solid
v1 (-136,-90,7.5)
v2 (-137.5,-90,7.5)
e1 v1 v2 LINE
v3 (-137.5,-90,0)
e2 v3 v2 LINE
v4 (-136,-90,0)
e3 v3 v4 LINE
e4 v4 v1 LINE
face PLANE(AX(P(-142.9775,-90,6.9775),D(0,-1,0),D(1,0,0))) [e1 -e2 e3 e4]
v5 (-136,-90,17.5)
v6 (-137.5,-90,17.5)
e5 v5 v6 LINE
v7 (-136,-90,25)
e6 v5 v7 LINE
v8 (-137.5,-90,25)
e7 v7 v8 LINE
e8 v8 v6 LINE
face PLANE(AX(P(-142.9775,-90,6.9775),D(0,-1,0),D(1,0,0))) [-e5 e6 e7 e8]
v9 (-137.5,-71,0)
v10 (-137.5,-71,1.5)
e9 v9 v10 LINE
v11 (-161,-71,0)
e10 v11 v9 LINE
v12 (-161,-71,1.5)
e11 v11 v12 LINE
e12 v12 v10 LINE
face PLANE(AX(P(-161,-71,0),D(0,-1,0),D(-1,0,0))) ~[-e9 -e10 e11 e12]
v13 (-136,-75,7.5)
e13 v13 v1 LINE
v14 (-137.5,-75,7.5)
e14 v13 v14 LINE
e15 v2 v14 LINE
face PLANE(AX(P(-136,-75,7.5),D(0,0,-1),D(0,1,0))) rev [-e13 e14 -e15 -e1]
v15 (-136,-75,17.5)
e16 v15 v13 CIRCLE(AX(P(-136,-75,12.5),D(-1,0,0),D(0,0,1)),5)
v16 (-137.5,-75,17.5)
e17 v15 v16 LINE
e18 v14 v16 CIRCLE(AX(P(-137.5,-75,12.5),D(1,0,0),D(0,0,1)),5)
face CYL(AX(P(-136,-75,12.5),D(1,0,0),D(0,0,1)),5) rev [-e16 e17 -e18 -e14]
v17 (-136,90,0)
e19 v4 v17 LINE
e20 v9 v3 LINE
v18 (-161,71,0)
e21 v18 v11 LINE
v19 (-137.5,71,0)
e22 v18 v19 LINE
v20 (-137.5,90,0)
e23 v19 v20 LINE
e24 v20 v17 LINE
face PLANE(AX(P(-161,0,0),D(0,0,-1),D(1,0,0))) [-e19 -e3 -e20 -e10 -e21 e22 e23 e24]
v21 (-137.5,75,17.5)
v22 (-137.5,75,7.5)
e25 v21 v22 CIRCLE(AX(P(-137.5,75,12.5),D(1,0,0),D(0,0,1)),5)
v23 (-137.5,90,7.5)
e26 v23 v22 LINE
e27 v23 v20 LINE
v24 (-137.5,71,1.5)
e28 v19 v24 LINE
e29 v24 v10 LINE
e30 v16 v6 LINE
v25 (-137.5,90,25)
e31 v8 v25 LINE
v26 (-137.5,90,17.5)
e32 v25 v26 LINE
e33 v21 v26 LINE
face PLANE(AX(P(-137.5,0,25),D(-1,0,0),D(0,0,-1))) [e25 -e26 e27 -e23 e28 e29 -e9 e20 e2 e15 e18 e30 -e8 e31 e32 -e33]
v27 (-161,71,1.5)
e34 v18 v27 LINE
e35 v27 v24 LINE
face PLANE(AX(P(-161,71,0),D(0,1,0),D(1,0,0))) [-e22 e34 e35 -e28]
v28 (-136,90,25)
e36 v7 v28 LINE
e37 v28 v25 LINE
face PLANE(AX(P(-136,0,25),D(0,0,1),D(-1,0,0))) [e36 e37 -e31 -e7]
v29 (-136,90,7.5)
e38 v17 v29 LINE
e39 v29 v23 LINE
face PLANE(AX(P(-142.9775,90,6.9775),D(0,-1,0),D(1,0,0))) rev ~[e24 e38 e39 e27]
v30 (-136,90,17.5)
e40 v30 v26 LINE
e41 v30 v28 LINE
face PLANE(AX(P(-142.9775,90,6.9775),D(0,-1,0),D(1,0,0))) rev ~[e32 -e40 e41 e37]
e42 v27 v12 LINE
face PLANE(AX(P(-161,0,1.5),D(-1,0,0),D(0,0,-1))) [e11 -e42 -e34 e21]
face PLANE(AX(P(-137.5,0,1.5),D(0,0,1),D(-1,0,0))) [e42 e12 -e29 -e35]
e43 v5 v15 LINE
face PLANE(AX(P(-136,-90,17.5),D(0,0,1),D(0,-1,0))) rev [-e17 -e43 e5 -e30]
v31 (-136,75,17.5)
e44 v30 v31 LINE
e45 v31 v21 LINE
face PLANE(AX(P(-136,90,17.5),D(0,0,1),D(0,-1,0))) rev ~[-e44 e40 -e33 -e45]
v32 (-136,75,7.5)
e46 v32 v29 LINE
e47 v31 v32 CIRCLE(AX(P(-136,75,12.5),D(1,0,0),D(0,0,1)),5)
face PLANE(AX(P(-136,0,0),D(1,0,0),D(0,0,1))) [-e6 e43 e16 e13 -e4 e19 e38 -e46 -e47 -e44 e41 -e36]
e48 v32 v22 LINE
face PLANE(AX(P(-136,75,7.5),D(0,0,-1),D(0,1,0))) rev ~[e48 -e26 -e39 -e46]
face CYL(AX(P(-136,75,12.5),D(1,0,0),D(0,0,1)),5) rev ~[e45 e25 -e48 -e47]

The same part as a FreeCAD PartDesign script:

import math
import FreeCAD as App
import Part
import Sketcher
from FreeCAD import Vector

doc = App.newDocument("Part")
body = doc.addObject("PartDesign::Body", "Body")

# Sketch on XZ plane
sketch1 = body.newObject("Sketcher::SketchObject", "Sketch")
sketch1.AttachmentSupport = (doc.getObject("XZ_Plane"), [""])
sketch1.MapMode = "FlatFace"
sketch1.addGeometry([
    Part.LineSegment(Vector(-1.5, 25, 0), Vector(-1.5, 1.5, 0)),  # 0
    Part.LineSegment(Vector(-1.5, 1.5, 0), Vector(-25, 1.5, 0)),  # 1
    Part.LineSegment(Vector(-25, 1.5, 0), Vector(-25, 0, 0)),  # 2
    Part.LineSegment(Vector(-25, 0, 0), Vector(0, 0, 0)),  # 3
    Part.LineSegment(Vector(0, 0, 0), Vector(0, 25, 0)),  # 4
    Part.LineSegment(Vector(0, 25, 0), Vector(-1.5, 25, 0)),  # 5
], False)
sketch1.addConstraint([
    Sketcher.Constraint("Coincident", 0, 2, 1, 1),
    Sketcher.Constraint("Coincident", 1, 2, 2, 1),
    Sketcher.Constraint("Coincident", 2, 2, 3, 1),
    Sketcher.Constraint("Coincident", 3, 2, 4, 1),
    Sketcher.Constraint("Coincident", 4, 2, 5, 1),
    Sketcher.Constraint("Coincident", 5, 2, 0, 1),
    Sketcher.Constraint("Vertical", 0),
    Sketcher.Constraint("Horizontal", 1),
    Sketcher.Constraint("Vertical", 2),
    Sketcher.Constraint("Horizontal", 3),
    Sketcher.Constraint("Vertical", 4),
    Sketcher.Constraint("Horizontal", 5),
    Sketcher.Constraint("Coincident", 3, 2, -1, 1),
    Sketcher.Constraint("Equal", 1, 0),
    Sketcher.Constraint("Equal", 5, 2),
    Sketcher.Constraint("DistanceX", 3, 1, 3, 2, 25.0),
    Sketcher.Constraint("DistanceX", 1, 2, 1, 1, 23.5),
])
pad1 = body.newObject("PartDesign::Pad", "Pad")
pad1.Profile = sketch1
pad1.Length = 180
pad1.Midplane = True

# Sketch on XY plane
sketch2 = body.newObject("Sketcher::SketchObject", "Sketch001")
sketch2.AttachmentSupport = (doc.getObject("XY_Plane"), [""])
sketch2.MapMode = "FlatFace"
sketch2.addGeometry([
    Part.LineSegment(Vector(-25, 90, 0), Vector(-25, 71, 0)),
    Part.LineSegment(Vector(-25, 71, 0), Vector(-1.5, 71, 0)),
    Part.LineSegment(Vector(-1.5, 71, 0), Vector(-1.5, 90, 0)),
    Part.LineSegment(Vector(-1.5, 90, 0), Vector(-25, 90, 0)),
], False)
sketch2.addConstraint([
    Sketcher.Constraint("Coincident", 0, 2, 1, 1),
    Sketcher.Constraint("Coincident", 1, 2, 2, 1),
    Sketcher.Constraint("Coincident", 2, 2, 3, 1),
    Sketcher.Constraint("Coincident", 3, 2, 0, 1),
    Sketcher.Constraint("Vertical", 0),
    Sketcher.Constraint("Horizontal", 1),
    Sketcher.Constraint("Vertical", 2),
    Sketcher.Constraint("Horizontal", 3),
    Sketcher.Constraint("DistanceY", 0, 2, 0, 1, 19.0),
    Sketcher.Constraint("DistanceX", 1, 1, 1, 2, 23.5),
    Sketcher.Constraint("DistanceX", 0, 2, -1, 1, 25.0),
    Sketcher.Constraint("DistanceY", -1, 1, 0, 2, 71.0),
])
pocket1 = body.newObject("PartDesign::Pocket", "Pocket")
pocket1.Profile = sketch2
pocket1.Length = 1.5
pocket1.Reversed = True

# Sketch on YZ plane
sketch3 = body.newObject("Sketcher::SketchObject", "Sketch002")
sketch3.AttachmentSupport = (doc.getObject("YZ_Plane"), [""])
sketch3.MapMode = "FlatFace"
sketch3.addGeometry([
    Part.ArcOfCircle(Part.Circle(Vector(75, 12.5, 0), Vector(0, 0, 1), 5), math.radians(90), math.radians(270)),
    Part.LineSegment(Vector(75, 7.5, 0), Vector(90, 7.5, 0)),
    Part.LineSegment(Vector(90, 7.5, 0), Vector(90, 17.5, 0)),
    Part.LineSegment(Vector(90, 17.5, 0), Vector(75, 17.5, 0)),
], False)
sketch3.addConstraint([
    Sketcher.Constraint("Tangent", 0, 2, 1, 1),
    Sketcher.Constraint("Coincident", 1, 2, 2, 1),
    Sketcher.Constraint("Coincident", 2, 2, 3, 1),
    Sketcher.Constraint("Tangent", 3, 2, 0, 1),
    Sketcher.Constraint("Horizontal", 1),
    Sketcher.Constraint("Vertical", 2),
    Sketcher.Constraint("Horizontal", 3),
    Sketcher.Constraint("Radius", 0, 5.0),
    Sketcher.Constraint("DistanceX", 1, 1, 1, 2, 15.0),
    Sketcher.Constraint("DistanceX", -1, 1, 0, 3, 75.0),
    Sketcher.Constraint("DistanceY", -1, 1, 0, 3, 12.5),
])
pocket2 = body.newObject("PartDesign::Pocket", "Pocket001")
pocket2.Profile = sketch3
pocket2.Length = 5
doc.recompute()

mirrored = body.newObject("PartDesign::Mirrored", "Mirrored")
mirrored.Originals = [pocket2, pocket1]
mirrored.MirrorPlane = (doc.getObject("XZ_Plane"), [""])
body.Tip = mirrored
body2 = doc.addObject("PartDesign::Body", "Body001")
doc.recompute()

body.Placement = App.Placement(Vector(-136, 0, 0), App.Rotation(Vector(0, 0, 1), 0))
boolean = body2.newObject("PartDesign::Boolean", "Boolean")
boolean.Type = "Fuse"
boolean.addObjects([body])

doc.recompute()
